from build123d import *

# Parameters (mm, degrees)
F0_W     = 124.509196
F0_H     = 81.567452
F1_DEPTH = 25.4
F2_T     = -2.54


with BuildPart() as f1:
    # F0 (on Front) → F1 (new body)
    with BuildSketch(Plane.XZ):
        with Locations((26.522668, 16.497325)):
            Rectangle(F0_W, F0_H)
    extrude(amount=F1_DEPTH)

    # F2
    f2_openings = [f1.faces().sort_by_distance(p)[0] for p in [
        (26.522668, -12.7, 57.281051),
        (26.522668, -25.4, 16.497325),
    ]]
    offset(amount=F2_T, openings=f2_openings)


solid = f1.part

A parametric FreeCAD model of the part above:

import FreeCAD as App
import Part
import Sketcher

V = App.Vector
Q = App.Units.Quantity


def faces_at(feature, points):
    """Names of the faces that lie closest to the given points."""
    faces = feature.Shape.Faces
    near = lambda p: min(range(len(faces)), key=lambda i: faces[i].distToShape(Part.Vertex(*p))[0])
    return sorted({f"Face{near(p) + 1}" for p in points})

doc = App.newDocument("Part")
body = doc.addObject("PartDesign::Body", "Body")

# Sketch on XZ plane
sketch1 = body.newObject("Sketcher::SketchObject", "Sketch")
sketch1.AttachmentSupport = (doc.getObject("XZ_Plane"), [""])
sketch1.MapMode = "FlatFace"
sketch1.addGeometry([
    Part.LineSegment(V(-36, 57, 0), V(-36, -24, 0)),
    Part.LineSegment(V(-36, -24, 0), V(89, -24, 0)),
    Part.LineSegment(V(89, -24, 0), V(89, 57, 0)),
    Part.LineSegment(V(89, 57, 0), V(-36, 57, 0)),
], False)
sketch1.addConstraint([
    Sketcher.Constraint("Coincident", 0, 2, 1, 1),
    Sketcher.Constraint("Coincident", 1, 2, 2, 1),
    Sketcher.Constraint("Coincident", 2, 2, 3, 1),
    Sketcher.Constraint("Coincident", 3, 2, 0, 1),
    Sketcher.Constraint("Vertical", 0),
    Sketcher.Constraint("Horizontal", 1),
    Sketcher.Constraint("Vertical", 2),
    Sketcher.Constraint("Horizontal", 3),
    Sketcher.Constraint("DistanceY", 0, 2, -1, 1, 24.286401),
    Sketcher.Constraint("DistanceX", 1, 1, 1, 2, 124.509196),
    Sketcher.Constraint("DistanceY", 0, 2, 0, 1, 81.567452),
    Sketcher.Constraint("DistanceX", 0, 2, -1, 1, 35.73193),
])
pad1 = body.newObject("PartDesign::Pad", "Pad")
pad1.Profile = sketch1
pad1.Length = Q("1 in")
doc.recompute()

thickness = body.newObject("PartDesign::Thickness", "Thickness")
thickness.Base = (pad1, faces_at(pad1, [(26.523, -12.7, 57.281), (26.523, -25.4, 16.497)]))
thickness.Value = Q("0.1 in")
thickness.Reversed = True
thickness.Join = "Arc"

doc.recompute()
